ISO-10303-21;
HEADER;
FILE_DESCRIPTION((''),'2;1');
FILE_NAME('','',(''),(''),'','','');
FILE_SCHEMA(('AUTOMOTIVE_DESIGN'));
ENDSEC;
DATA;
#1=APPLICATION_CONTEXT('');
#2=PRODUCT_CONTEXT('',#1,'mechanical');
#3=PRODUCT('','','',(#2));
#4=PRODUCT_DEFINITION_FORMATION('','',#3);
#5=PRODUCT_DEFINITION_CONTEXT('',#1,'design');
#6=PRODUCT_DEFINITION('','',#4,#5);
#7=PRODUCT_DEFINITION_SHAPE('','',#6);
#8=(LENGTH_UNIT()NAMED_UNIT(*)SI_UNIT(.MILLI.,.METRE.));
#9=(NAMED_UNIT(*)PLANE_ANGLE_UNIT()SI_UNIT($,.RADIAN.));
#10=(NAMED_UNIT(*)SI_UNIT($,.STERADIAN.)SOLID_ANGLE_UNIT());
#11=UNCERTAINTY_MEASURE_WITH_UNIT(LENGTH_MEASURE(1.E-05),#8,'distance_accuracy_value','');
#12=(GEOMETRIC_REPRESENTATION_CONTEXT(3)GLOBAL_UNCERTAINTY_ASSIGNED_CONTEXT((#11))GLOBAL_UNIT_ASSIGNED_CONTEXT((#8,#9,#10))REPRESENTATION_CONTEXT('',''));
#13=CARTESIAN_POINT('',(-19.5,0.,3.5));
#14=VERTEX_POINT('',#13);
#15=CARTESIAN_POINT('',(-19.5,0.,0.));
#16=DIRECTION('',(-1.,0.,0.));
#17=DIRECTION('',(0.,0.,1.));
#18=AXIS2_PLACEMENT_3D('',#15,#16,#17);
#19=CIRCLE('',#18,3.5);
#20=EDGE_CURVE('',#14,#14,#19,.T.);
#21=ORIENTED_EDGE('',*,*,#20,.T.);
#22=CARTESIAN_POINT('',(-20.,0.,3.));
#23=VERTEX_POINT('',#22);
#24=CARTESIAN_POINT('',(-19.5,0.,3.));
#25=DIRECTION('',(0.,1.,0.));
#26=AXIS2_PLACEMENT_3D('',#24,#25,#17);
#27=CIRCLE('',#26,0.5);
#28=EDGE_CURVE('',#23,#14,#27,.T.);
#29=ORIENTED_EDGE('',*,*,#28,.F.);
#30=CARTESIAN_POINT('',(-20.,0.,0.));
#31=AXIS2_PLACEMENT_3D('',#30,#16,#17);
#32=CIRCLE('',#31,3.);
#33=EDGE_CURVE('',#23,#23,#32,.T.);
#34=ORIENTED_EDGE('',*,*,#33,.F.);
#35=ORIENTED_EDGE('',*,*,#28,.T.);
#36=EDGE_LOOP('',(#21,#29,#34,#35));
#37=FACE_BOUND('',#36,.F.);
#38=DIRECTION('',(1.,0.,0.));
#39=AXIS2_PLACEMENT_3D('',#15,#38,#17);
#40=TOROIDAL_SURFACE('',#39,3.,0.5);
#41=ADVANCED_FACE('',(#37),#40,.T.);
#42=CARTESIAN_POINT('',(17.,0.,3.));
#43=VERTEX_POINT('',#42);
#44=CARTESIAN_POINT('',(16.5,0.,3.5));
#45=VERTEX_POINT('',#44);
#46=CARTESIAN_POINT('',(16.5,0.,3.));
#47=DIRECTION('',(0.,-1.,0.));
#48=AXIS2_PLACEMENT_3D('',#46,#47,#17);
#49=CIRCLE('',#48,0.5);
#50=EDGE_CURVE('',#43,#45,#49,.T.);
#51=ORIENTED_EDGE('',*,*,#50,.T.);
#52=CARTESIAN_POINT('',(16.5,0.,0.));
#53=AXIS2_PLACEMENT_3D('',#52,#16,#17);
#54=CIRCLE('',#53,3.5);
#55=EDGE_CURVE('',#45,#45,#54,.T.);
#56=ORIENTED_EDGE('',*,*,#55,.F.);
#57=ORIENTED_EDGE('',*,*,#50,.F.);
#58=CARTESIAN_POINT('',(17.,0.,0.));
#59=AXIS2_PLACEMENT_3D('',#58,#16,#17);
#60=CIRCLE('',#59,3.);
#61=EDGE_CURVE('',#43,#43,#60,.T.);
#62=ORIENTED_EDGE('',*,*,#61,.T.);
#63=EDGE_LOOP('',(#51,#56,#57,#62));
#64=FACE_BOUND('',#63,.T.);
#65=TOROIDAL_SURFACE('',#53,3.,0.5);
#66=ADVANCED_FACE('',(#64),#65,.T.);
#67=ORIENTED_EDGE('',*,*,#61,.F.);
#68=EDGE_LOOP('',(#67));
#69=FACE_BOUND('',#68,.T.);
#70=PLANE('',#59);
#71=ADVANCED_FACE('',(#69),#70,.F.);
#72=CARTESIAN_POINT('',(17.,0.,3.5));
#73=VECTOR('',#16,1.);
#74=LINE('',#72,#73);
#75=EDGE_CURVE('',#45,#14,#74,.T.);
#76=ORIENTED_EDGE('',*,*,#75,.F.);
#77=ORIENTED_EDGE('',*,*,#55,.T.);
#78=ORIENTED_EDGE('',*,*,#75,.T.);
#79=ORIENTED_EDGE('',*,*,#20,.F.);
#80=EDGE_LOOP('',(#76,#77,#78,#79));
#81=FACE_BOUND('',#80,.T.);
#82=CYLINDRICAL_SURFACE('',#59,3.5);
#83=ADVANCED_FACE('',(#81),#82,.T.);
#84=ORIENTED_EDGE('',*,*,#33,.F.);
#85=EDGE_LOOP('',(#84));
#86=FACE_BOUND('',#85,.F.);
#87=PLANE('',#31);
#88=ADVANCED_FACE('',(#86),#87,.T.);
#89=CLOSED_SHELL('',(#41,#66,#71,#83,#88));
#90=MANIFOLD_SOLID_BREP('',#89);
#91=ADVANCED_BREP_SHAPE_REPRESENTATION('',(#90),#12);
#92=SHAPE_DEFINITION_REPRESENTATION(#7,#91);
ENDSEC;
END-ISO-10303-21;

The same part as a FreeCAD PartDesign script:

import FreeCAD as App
import Part
import Sketcher
from FreeCAD import Vector
Q = App.Units.Quantity


def edges_at(feature, points):
    """Names of the edges that pass closest to the given points."""
    edges = feature.Shape.Edges
    near = lambda p: min(range(len(edges)), key=lambda i: edges[i].distToShape(Part.Vertex(*p))[0])
    return sorted({f"Edge{near(p) + 1}" for p in points})

doc = App.newDocument("Part")
body = doc.addObject("PartDesign::Body", "Body")

# Sketch on XZ plane
sketch1 = body.newObject("Sketcher::SketchObject", "Sketch")
sketch1.AttachmentSupport = (doc.getObject("XZ_Plane"), [""])
sketch1.MapMode = "FlatFace"
sketch1.addGeometry(Part.LineSegment(Vector(-20, 3.5, 0), Vector(-20, 0, 0)), False)
sketch1.addGeometry(Part.LineSegment(Vector(-20, 0, 0), Vector(17, 0, 0)), False)
sketch1.addGeometry(Part.LineSegment(Vector(17, 0, 0), Vector(17, 3.5, 0)), False)
sketch1.addGeometry(Part.LineSegment(Vector(17, 3.5, 0), Vector(-20, 3.5, 0)), False)
sketch1.addConstraint(Sketcher.Constraint("Coincident", 0, 2, 1, 1))
sketch1.addConstraint(Sketcher.Constraint("Coincident", 1, 2, 2, 1))
sketch1.addConstraint(Sketcher.Constraint("Coincident", 2, 2, 3, 1))
sketch1.addConstraint(Sketcher.Constraint("Coincident", 3, 2, 0, 1))
sketch1.addConstraint(Sketcher.Constraint("Vertical", 0))
sketch1.addConstraint(Sketcher.Constraint("Horizontal", 1))
sketch1.addConstraint(Sketcher.Constraint("Vertical", 2))
sketch1.addConstraint(Sketcher.Constraint("Horizontal", 3))
sketch1.addConstraint(Sketcher.Constraint("PointOnObject", 0, 2, -1))
sketch1.addConstraint(Sketcher.Constraint("DistanceX", 1, 1, 1, 2, Q("37 mm")))
sketch1.addConstraint(Sketcher.Constraint("DistanceY", 0, 2, 0, 1, Q("3.5 mm")))
sketch1.addConstraint(Sketcher.Constraint("DistanceX", 0, 2, -1, 1, Q("20 mm")))
revolution = body.newObject("PartDesign::Revolution", "Revolution")
revolution.Profile = sketch1
revolution.ReferenceAxis = (sketch1, ["H_Axis"])
revolution.Angle = 360
doc.recompute()

fillet = body.newObject("PartDesign::Fillet", "Fillet")
fillet.Base = (revolution, edges_at(revolution, [(-20, 0, -3.5), (17, 0, -3.5)]))
fillet.Radius = 0.5

doc.recompute()
